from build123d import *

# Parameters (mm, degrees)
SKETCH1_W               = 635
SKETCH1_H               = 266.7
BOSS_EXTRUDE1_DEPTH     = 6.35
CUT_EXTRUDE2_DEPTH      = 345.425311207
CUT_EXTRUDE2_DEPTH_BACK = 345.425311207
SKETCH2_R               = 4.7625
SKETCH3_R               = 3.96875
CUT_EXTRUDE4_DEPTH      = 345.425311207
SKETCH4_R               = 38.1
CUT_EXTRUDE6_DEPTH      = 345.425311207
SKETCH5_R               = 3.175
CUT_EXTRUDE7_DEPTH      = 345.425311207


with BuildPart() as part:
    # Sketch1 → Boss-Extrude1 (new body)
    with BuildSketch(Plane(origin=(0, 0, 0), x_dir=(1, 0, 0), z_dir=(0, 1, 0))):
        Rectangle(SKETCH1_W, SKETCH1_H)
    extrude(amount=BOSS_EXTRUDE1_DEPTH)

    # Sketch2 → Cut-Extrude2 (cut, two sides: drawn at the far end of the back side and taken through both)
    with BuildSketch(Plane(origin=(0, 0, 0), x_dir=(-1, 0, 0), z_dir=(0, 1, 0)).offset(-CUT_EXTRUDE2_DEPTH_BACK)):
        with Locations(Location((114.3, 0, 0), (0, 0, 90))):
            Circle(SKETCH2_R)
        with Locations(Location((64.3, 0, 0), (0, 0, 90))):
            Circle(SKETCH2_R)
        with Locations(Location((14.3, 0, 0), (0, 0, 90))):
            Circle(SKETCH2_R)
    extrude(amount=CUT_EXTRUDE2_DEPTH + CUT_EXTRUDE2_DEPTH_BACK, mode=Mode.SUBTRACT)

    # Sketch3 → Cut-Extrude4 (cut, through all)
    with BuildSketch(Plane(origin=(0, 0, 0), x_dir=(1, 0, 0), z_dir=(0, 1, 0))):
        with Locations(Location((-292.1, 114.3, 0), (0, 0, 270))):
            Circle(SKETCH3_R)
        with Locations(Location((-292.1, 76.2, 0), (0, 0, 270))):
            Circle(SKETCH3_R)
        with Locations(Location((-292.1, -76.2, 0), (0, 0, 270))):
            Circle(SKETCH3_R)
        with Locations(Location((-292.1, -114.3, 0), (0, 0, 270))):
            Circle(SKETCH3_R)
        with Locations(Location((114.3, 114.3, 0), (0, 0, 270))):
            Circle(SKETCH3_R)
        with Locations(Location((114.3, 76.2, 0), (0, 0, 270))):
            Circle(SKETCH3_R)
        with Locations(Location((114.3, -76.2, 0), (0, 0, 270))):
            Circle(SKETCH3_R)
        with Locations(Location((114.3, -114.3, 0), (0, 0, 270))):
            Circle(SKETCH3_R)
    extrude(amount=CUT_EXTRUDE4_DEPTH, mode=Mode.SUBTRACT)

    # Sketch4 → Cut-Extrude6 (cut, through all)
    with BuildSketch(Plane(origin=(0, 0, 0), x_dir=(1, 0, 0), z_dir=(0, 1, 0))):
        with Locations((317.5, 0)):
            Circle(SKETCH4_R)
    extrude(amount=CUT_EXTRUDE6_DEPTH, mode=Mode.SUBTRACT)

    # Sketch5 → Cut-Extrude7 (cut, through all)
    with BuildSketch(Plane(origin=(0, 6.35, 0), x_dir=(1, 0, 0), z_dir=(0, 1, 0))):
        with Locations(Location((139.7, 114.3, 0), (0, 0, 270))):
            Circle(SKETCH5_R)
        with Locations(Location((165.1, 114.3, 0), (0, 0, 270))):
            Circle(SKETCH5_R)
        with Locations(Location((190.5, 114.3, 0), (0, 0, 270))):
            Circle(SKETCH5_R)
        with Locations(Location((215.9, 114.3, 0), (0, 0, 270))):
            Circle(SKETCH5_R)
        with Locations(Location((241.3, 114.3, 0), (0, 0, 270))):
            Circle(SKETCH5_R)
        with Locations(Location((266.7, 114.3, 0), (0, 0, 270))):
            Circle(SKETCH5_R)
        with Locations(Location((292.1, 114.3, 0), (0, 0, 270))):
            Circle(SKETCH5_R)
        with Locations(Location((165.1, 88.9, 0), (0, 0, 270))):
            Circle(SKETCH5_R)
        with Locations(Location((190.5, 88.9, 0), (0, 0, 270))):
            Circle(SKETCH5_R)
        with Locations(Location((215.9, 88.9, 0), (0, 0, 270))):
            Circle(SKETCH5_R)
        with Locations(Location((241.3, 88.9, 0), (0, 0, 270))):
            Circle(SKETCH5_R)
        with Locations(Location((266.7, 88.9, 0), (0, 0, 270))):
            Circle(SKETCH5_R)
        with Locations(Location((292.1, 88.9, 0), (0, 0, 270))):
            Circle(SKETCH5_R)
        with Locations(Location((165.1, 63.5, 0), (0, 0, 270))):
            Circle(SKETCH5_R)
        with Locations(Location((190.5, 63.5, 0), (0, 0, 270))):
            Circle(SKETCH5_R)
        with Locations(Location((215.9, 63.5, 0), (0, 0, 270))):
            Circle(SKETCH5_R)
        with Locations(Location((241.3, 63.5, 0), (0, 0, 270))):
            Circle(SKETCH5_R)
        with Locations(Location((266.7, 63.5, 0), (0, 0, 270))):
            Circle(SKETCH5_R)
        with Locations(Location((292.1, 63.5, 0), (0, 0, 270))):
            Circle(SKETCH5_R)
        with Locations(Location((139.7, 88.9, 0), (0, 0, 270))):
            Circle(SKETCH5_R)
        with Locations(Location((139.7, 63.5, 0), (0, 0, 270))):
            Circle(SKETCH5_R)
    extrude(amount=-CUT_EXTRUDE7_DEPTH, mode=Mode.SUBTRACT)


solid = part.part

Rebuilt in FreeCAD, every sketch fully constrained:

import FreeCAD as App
import Part
import Sketcher

V = App.Vector
Q = App.Units.Quantity


def add_polygon(sketch, points):
    """Adds a closed chain of lines whose ends are joined by coincident constraints."""
    first, n = sketch.GeometryCount, len(points)
    for a, b in zip(points, points[1:] + points[:1]):
        sketch.addGeometry(Part.LineSegment(App.Vector(*a, 0), App.Vector(*b, 0)), False)
    for i in range(n):
        sketch.addConstraint(Sketcher.Constraint("Coincident", first + i, 2, first + (i + 1) % n, 1))

doc = App.newDocument("Part")
body = doc.addObject("PartDesign::Body", "Body")

# Sketch on XZ plane
sketch1 = body.newObject("Sketcher::SketchObject", "Sketch")
sketch1.AttachmentSupport = (doc.getObject("XZ_Plane"), [""])
sketch1.MapMode = "FlatFace"
add_polygon(sketch1, [(-318, -133), (-318, 133), (318, 133), (318, -133)])  # lines 0-3
sketch1.addConstraint(Sketcher.Constraint("Vertical", 0))
sketch1.addConstraint(Sketcher.Constraint("Horizontal", 1))
sketch1.addConstraint(Sketcher.Constraint("Vertical", 2))
sketch1.addConstraint(Sketcher.Constraint("Horizontal", 3))
sketch1.addConstraint(Sketcher.Constraint("Symmetric", 0, 2, 2, 2, -1, 1))
sketch1.addConstraint(Sketcher.Constraint("DistanceX", 1, 1, 1, 2, Q("25 in")))
sketch1.addConstraint(Sketcher.Constraint("DistanceY", 0, 1, 0, 2, Q("10.5 in")))
pad1 = body.newObject("PartDesign::Pad", "Pad")
pad1.Profile = sketch1
pad1.Length = Q("0.25 in")
pad1.Reversed = True

# Sketch on XZ plane
sketch2 = body.newObject("Sketcher::SketchObject", "Sketch001")
sketch2.AttachmentSupport = (doc.getObject("XZ_Plane"), [""])
sketch2.MapMode = "FlatFace"
sketch2.addGeometry(Part.Circle(V(-114.3, 0, 0), V(0, 0, 1), 4.8), False)
sketch2.addGeometry(Part.Circle(V(-64.3, 0, 0), V(0, 0, 1), 4.8), False)
sketch2.addGeometry(Part.Circle(V(-14.3, 0, 0), V(0, 0, 1), 4.8), False)
sketch2.addConstraint(Sketcher.Constraint("Equal", 0, 1))
sketch2.addConstraint(Sketcher.Constraint("Equal", 1, 2))
sketch2.addConstraint(Sketcher.Constraint("PointOnObject", 0, 3, -1))
sketch2.addConstraint(Sketcher.Constraint("PointOnObject", 1, 3, -1))
sketch2.addConstraint(Sketcher.Constraint("PointOnObject", 2, 3, -1))
sketch2.addConstraint(Sketcher.Constraint("Diameter", 0, Q("0.375 in")))
sketch2.addConstraint(Sketcher.Constraint("DistanceX", 0, 3, -1, 1, Q("4.5 in")))
sketch2.addConstraint(Sketcher.Constraint("DistanceX", 1, 3, -1, 1, Q("64.3 mm")))
sketch2.addConstraint(Sketcher.Constraint("DistanceX", 2, 3, -1, 1, Q("14.3 mm")))
pocket1 = body.newObject("PartDesign::Pocket", "Pocket")
pocket1.Profile = sketch2
pocket1.Type = "ThroughAll"
pocket1.Midplane = True

# Sketch on XZ plane
sketch3 = body.newObject("Sketcher::SketchObject", "Sketch002")
sketch3.AttachmentSupport = (doc.getObject("XZ_Plane"), [""])
sketch3.MapMode = "FlatFace"
sketch3.addGeometry(Part.Circle(V(-292.1, -114.3, 0), V(0, 0, 1), 4), False)
sketch3.addGeometry(Part.Circle(V(-292.1, -76.2, 0), V(0, 0, 1), 4), False)
sketch3.addGeometry(Part.Circle(V(-292.1, 76.2, 0), V(0, 0, 1), 4), False)
sketch3.addGeometry(Part.Circle(V(-292.1, 114.3, 0), V(0, 0, 1), 4), False)
sketch3.addGeometry(Part.Circle(V(114.3, -114.3, 0), V(0, 0, 1), 4), False)
sketch3.addGeometry(Part.Circle(V(114.3, -76.2, 0), V(0, 0, 1), 4), False)
sketch3.addGeometry(Part.Circle(V(114.3, 76.2, 0), V(0, 0, 1), 4), False)
sketch3.addGeometry(Part.Circle(V(114.3, 114.3, 0), V(0, 0, 1), 4), False)
sketch3.addConstraint(Sketcher.Constraint("Equal", 0, 1))
sketch3.addConstraint(Sketcher.Constraint("Equal", 1, 2))
sketch3.addConstraint(Sketcher.Constraint("Equal", 2, 3))
sketch3.addConstraint(Sketcher.Constraint("Equal", 3, 4))
sketch3.addConstraint(Sketcher.Constraint("Equal", 4, 5))
sketch3.addConstraint(Sketcher.Constraint("Equal", 5, 6))
sketch3.addConstraint(Sketcher.Constraint("Equal", 6, 7))
sketch3.addConstraint(Sketcher.Constraint("Symmetric", 1, 3, 2, 3, -1))
sketch3.addConstraint(Sketcher.Constraint("Symmetric", 0, 3, 3, 3, -1))
sketch3.addConstraint(Sketcher.Constraint("Symmetric", 5, 3, 6, 3, -1))
sketch3.addConstraint(Sketcher.Constraint("Symmetric", 4, 3, 7, 3, -1))
sketch3.addConstraint(Sketcher.Constraint("Horizontal", 0, 3, 4, 3))
sketch3.addConstraint(Sketcher.Constraint("Horizontal", 1, 3, 5, 3))
sketch3.addConstraint(Sketcher.Constraint("Vertical", 0, 3, 1, 3))
sketch3.addConstraint(Sketcher.Constraint("Vertical", 4, 3, 5, 3))
sketch3.addConstraint(Sketcher.Constraint("Diameter", 0, Q("0.3125 in")))
sketch3.addConstraint(Sketcher.Constraint("DistanceY", 1, 3, -1, 1, Q("3 in")))
sketch3.addConstraint(Sketcher.Constraint("DistanceY", 0, 3, 3, 3, Q("9 in")))
sketch3.addConstraint(Sketcher.Constraint("DistanceX", 0, 3, 4, 3, Q("16 in")))
sketch3.addConstraint(Sketcher.Constraint("DistanceX", 0, 3, -1, 1, Q("11.5 in")))
pocket2 = body.newObject("PartDesign::Pocket", "Pocket001")
pocket2.Profile = sketch3
pocket2.Type = "ThroughAll"

# Sketch on XZ plane
sketch4 = body.newObject("Sketcher::SketchObject", "Sketch003")
sketch4.AttachmentSupport = (doc.getObject("XZ_Plane"), [""])
sketch4.MapMode = "FlatFace"
sketch4.addGeometry(Part.Circle(V(318, 0, 0), V(0, 0, 1), 38), False)
sketch4.addConstraint(Sketcher.Constraint("PointOnObject", 0, 3, -1))
sketch4.addConstraint(Sketcher.Constraint("Diameter", 0, Q("3 in")))
sketch4.addConstraint(Sketcher.Constraint("DistanceX", -1, 1, 0, 3, Q("12.5 in")))
pocket3 = body.newObject("PartDesign::Pocket", "Pocket002")
pocket3.Profile = sketch4
pocket3.Type = "ThroughAll"

# Sketch on XZ plane
sketch5 = body.newObject("Sketcher::SketchObject", "Sketch004")
sketch5.AttachmentSupport = (doc.getObject("XZ_Plane"), [""])
sketch5.MapMode = "FlatFace"
sketch5.AttachmentOffset = App.Placement(V(0, 0, -0.25 * 25.4), App.Rotation())
sketch5.addGeometry(Part.Circle(V(139.7, -114.3, 0), V(0, 0, 1), 3.2), False)
sketch5.addGeometry(Part.Circle(V(165.1, -114.3, 0), V(0, 0, 1), 3.2), False)
sketch5.addGeometry(Part.Circle(V(190.5, -114.3, 0), V(0, 0, 1), 3.2), False)
sketch5.addGeometry(Part.Circle(V(215.9, -114.3, 0), V(0, 0, 1), 3.2), False)
sketch5.addGeometry(Part.Circle(V(241.3, -114.3, 0), V(0, 0, 1), 3.2), False)
sketch5.addGeometry(Part.Circle(V(266.7, -114.3, 0), V(0, 0, 1), 3.2), False)
sketch5.addGeometry(Part.Circle(V(292.1, -114.3, 0), V(0, 0, 1), 3.2), False)
sketch5.addGeometry(Part.Circle(V(165.1, -88.9, 0), V(0, 0, 1), 3.2), False)
sketch5.addGeometry(Part.Circle(V(190.5, -88.9, 0), V(0, 0, 1), 3.2), False)
sketch5.addGeometry(Part.Circle(V(215.9, -88.9, 0), V(0, 0, 1), 3.2), False)
sketch5.addGeometry(Part.Circle(V(241.3, -88.9, 0), V(0, 0, 1), 3.2), False)
sketch5.addGeometry(Part.Circle(V(266.7, -88.9, 0), V(0, 0, 1), 3.2), False)
sketch5.addGeometry(Part.Circle(V(292.1, -88.9, 0), V(0, 0, 1), 3.2), False)
sketch5.addGeometry(Part.Circle(V(165.1, -63.5, 0), V(0, 0, 1), 3.2), False)
sketch5.addGeometry(Part.Circle(V(190.5, -63.5, 0), V(0, 0, 1), 3.2), False)
sketch5.addGeometry(Part.Circle(V(215.9, -63.5, 0), V(0, 0, 1), 3.2), False)
sketch5.addGeometry(Part.Circle(V(241.3, -63.5, 0), V(0, 0, 1), 3.2), False)
sketch5.addGeometry(Part.Circle(V(266.7, -63.5, 0), V(0, 0, 1), 3.2), False)
sketch5.addGeometry(Part.Circle(V(292.1, -63.5, 0), V(0, 0, 1), 3.2), False)
sketch5.addGeometry(Part.Circle(V(139.7, -88.9, 0), V(0, 0, 1), 3.2), False)
sketch5.addGeometry(Part.Circle(V(139.7, -63.5, 0), V(0, 0, 1), 3.2), False)
sketch5.addConstraint(Sketcher.Constraint("Equal", 0, 1))
sketch5.addConstraint(Sketcher.Constraint("Equal", 1, 2))
sketch5.addConstraint(Sketcher.Constraint("Equal", 2, 3))
sketch5.addConstraint(Sketcher.Constraint("Equal", 3, 4))
sketch5.addConstraint(Sketcher.Constraint("Equal", 4, 5))
sketch5.addConstraint(Sketcher.Constraint("Equal", 5, 6))
sketch5.addConstraint(Sketcher.Constraint("Equal", 6, 7))
sketch5.addConstraint(Sketcher.Constraint("Equal", 7, 8))
sketch5.addConstraint(Sketcher.Constraint("Equal", 8, 9))
sketch5.addConstraint(Sketcher.Constraint("Equal", 9, 10))
sketch5.addConstraint(Sketcher.Constraint("Equal", 10, 11))
sketch5.addConstraint(Sketcher.Constraint("Equal", 11, 12))
sketch5.addConstraint(Sketcher.Constraint("Equal", 12, 13))
sketch5.addConstraint(Sketcher.Constraint("Equal", 13, 14))
sketch5.addConstraint(Sketcher.Constraint("Equal", 14, 15))
sketch5.addConstraint(Sketcher.Constraint("Equal", 15, 16))
sketch5.addConstraint(Sketcher.Constraint("Equal", 16, 17))
sketch5.addConstraint(Sketcher.Constraint("Equal", 17, 18))
sketch5.addConstraint(Sketcher.Constraint("Equal", 18, 19))
sketch5.addConstraint(Sketcher.Constraint("Equal", 19, 20))
sketch5.addConstraint(Sketcher.Constraint("Horizontal", 0, 3, 1, 3))
sketch5.addConstraint(Sketcher.Constraint("Horizontal", 1, 3, 2, 3))
sketch5.addConstraint(Sketcher.Constraint("Horizontal", 2, 3, 3, 3))
sketch5.addConstraint(Sketcher.Constraint("Horizontal", 3, 3, 4, 3))
sketch5.addConstraint(Sketcher.Constraint("Horizontal", 4, 3, 5, 3))
sketch5.addConstraint(Sketcher.Constraint("Horizontal", 5, 3, 6, 3))
sketch5.addConstraint(Sketcher.Constraint("Horizontal", 7, 3, 8, 3))
sketch5.addConstraint(Sketcher.Constraint("Horizontal", 8, 3, 9, 3))
sketch5.addConstraint(Sketcher.Constraint("Horizontal", 9, 3, 10, 3))
sketch5.addConstraint(Sketcher.Constraint("Horizontal", 10, 3, 11, 3))
sketch5.addConstraint(Sketcher.Constraint("Horizontal", 11, 3, 12, 3))
sketch5.addConstraint(Sketcher.Constraint("Horizontal", 13, 3, 14, 3))
sketch5.addConstraint(Sketcher.Constraint("Horizontal", 14, 3, 15, 3))
sketch5.addConstraint(Sketcher.Constraint("Horizontal", 15, 3, 16, 3))
sketch5.addConstraint(Sketcher.Constraint("Horizontal", 16, 3, 17, 3))
sketch5.addConstraint(Sketcher.Constraint("Horizontal", 17, 3, 18, 3))
sketch5.addConstraint(Sketcher.Constraint("Horizontal", 12, 3, 19, 3))
sketch5.addConstraint(Sketcher.Constraint("Horizontal", 18, 3, 20, 3))
sketch5.addConstraint(Sketcher.Constraint("Vertical", 1, 3, 7, 3))
sketch5.addConstraint(Sketcher.Constraint("Vertical", 2, 3, 8, 3))
sketch5.addConstraint(Sketcher.Constraint("Vertical", 3, 3, 9, 3))
sketch5.addConstraint(Sketcher.Constraint("Vertical", 4, 3, 10, 3))
sketch5.addConstraint(Sketcher.Constraint("Vertical", 5, 3, 11, 3))
sketch5.addConstraint(Sketcher.Constraint("Vertical", 6, 3, 12, 3))
sketch5.addConstraint(Sketcher.Constraint("Vertical", 7, 3, 13, 3))
sketch5.addConstraint(Sketcher.Constraint("Vertical", 8, 3, 14, 3))
sketch5.addConstraint(Sketcher.Constraint("Vertical", 9, 3, 15, 3))
sketch5.addConstraint(Sketcher.Constraint("Vertical", 10, 3, 16, 3))
sketch5.addConstraint(Sketcher.Constraint("Vertical", 11, 3, 17, 3))
sketch5.addConstraint(Sketcher.Constraint("Vertical", 12, 3, 18, 3))
sketch5.addConstraint(Sketcher.Constraint("Vertical", 0, 3, 19, 3))
sketch5.addConstraint(Sketcher.Constraint("Vertical", 19, 3, 20, 3))
sketch5.addConstraint(Sketcher.Constraint("Diameter", 0, Q("0.25 in")))
sketch5.addConstraint(Sketcher.Constraint("DistanceX", 0, 3, 1, 3, Q("1 in")))
sketch5.addConstraint(Sketcher.Constraint("DistanceX", 1, 3, 2, 3, Q("1 in")))
sketch5.addConstraint(Sketcher.Constraint("DistanceX", 2, 3, 3, 3, Q("1 in")))
sketch5.addConstraint(Sketcher.Constraint("DistanceX", 3, 3, 4, 3, Q("1 in")))
sketch5.addConstraint(Sketcher.Constraint("DistanceX", 4, 3, 5, 3, Q("1 in")))
sketch5.addConstraint(Sketcher.Constraint("DistanceX", 5, 3, 6, 3, Q("1 in")))
sketch5.addConstraint(Sketcher.Constraint("DistanceY", 1, 3, 7, 3, Q("1 in")))
sketch5.addConstraint(Sketcher.Constraint("DistanceY", 7, 3, 13, 3, Q("1 in")))
sketch5.addConstraint(Sketcher.Constraint("DistanceX", -1, 1, 0, 3, Q("5.5 in")))
sketch5.addConstraint(Sketcher.Constraint("DistanceY", 0, 3, -1, 1, Q("4.5 in")))
pocket4 = body.newObject("PartDesign::Pocket", "Pocket003")
pocket4.Profile = sketch5
pocket4.Type = "ThroughAll"
pocket4.Reversed = True

doc.recompute()
